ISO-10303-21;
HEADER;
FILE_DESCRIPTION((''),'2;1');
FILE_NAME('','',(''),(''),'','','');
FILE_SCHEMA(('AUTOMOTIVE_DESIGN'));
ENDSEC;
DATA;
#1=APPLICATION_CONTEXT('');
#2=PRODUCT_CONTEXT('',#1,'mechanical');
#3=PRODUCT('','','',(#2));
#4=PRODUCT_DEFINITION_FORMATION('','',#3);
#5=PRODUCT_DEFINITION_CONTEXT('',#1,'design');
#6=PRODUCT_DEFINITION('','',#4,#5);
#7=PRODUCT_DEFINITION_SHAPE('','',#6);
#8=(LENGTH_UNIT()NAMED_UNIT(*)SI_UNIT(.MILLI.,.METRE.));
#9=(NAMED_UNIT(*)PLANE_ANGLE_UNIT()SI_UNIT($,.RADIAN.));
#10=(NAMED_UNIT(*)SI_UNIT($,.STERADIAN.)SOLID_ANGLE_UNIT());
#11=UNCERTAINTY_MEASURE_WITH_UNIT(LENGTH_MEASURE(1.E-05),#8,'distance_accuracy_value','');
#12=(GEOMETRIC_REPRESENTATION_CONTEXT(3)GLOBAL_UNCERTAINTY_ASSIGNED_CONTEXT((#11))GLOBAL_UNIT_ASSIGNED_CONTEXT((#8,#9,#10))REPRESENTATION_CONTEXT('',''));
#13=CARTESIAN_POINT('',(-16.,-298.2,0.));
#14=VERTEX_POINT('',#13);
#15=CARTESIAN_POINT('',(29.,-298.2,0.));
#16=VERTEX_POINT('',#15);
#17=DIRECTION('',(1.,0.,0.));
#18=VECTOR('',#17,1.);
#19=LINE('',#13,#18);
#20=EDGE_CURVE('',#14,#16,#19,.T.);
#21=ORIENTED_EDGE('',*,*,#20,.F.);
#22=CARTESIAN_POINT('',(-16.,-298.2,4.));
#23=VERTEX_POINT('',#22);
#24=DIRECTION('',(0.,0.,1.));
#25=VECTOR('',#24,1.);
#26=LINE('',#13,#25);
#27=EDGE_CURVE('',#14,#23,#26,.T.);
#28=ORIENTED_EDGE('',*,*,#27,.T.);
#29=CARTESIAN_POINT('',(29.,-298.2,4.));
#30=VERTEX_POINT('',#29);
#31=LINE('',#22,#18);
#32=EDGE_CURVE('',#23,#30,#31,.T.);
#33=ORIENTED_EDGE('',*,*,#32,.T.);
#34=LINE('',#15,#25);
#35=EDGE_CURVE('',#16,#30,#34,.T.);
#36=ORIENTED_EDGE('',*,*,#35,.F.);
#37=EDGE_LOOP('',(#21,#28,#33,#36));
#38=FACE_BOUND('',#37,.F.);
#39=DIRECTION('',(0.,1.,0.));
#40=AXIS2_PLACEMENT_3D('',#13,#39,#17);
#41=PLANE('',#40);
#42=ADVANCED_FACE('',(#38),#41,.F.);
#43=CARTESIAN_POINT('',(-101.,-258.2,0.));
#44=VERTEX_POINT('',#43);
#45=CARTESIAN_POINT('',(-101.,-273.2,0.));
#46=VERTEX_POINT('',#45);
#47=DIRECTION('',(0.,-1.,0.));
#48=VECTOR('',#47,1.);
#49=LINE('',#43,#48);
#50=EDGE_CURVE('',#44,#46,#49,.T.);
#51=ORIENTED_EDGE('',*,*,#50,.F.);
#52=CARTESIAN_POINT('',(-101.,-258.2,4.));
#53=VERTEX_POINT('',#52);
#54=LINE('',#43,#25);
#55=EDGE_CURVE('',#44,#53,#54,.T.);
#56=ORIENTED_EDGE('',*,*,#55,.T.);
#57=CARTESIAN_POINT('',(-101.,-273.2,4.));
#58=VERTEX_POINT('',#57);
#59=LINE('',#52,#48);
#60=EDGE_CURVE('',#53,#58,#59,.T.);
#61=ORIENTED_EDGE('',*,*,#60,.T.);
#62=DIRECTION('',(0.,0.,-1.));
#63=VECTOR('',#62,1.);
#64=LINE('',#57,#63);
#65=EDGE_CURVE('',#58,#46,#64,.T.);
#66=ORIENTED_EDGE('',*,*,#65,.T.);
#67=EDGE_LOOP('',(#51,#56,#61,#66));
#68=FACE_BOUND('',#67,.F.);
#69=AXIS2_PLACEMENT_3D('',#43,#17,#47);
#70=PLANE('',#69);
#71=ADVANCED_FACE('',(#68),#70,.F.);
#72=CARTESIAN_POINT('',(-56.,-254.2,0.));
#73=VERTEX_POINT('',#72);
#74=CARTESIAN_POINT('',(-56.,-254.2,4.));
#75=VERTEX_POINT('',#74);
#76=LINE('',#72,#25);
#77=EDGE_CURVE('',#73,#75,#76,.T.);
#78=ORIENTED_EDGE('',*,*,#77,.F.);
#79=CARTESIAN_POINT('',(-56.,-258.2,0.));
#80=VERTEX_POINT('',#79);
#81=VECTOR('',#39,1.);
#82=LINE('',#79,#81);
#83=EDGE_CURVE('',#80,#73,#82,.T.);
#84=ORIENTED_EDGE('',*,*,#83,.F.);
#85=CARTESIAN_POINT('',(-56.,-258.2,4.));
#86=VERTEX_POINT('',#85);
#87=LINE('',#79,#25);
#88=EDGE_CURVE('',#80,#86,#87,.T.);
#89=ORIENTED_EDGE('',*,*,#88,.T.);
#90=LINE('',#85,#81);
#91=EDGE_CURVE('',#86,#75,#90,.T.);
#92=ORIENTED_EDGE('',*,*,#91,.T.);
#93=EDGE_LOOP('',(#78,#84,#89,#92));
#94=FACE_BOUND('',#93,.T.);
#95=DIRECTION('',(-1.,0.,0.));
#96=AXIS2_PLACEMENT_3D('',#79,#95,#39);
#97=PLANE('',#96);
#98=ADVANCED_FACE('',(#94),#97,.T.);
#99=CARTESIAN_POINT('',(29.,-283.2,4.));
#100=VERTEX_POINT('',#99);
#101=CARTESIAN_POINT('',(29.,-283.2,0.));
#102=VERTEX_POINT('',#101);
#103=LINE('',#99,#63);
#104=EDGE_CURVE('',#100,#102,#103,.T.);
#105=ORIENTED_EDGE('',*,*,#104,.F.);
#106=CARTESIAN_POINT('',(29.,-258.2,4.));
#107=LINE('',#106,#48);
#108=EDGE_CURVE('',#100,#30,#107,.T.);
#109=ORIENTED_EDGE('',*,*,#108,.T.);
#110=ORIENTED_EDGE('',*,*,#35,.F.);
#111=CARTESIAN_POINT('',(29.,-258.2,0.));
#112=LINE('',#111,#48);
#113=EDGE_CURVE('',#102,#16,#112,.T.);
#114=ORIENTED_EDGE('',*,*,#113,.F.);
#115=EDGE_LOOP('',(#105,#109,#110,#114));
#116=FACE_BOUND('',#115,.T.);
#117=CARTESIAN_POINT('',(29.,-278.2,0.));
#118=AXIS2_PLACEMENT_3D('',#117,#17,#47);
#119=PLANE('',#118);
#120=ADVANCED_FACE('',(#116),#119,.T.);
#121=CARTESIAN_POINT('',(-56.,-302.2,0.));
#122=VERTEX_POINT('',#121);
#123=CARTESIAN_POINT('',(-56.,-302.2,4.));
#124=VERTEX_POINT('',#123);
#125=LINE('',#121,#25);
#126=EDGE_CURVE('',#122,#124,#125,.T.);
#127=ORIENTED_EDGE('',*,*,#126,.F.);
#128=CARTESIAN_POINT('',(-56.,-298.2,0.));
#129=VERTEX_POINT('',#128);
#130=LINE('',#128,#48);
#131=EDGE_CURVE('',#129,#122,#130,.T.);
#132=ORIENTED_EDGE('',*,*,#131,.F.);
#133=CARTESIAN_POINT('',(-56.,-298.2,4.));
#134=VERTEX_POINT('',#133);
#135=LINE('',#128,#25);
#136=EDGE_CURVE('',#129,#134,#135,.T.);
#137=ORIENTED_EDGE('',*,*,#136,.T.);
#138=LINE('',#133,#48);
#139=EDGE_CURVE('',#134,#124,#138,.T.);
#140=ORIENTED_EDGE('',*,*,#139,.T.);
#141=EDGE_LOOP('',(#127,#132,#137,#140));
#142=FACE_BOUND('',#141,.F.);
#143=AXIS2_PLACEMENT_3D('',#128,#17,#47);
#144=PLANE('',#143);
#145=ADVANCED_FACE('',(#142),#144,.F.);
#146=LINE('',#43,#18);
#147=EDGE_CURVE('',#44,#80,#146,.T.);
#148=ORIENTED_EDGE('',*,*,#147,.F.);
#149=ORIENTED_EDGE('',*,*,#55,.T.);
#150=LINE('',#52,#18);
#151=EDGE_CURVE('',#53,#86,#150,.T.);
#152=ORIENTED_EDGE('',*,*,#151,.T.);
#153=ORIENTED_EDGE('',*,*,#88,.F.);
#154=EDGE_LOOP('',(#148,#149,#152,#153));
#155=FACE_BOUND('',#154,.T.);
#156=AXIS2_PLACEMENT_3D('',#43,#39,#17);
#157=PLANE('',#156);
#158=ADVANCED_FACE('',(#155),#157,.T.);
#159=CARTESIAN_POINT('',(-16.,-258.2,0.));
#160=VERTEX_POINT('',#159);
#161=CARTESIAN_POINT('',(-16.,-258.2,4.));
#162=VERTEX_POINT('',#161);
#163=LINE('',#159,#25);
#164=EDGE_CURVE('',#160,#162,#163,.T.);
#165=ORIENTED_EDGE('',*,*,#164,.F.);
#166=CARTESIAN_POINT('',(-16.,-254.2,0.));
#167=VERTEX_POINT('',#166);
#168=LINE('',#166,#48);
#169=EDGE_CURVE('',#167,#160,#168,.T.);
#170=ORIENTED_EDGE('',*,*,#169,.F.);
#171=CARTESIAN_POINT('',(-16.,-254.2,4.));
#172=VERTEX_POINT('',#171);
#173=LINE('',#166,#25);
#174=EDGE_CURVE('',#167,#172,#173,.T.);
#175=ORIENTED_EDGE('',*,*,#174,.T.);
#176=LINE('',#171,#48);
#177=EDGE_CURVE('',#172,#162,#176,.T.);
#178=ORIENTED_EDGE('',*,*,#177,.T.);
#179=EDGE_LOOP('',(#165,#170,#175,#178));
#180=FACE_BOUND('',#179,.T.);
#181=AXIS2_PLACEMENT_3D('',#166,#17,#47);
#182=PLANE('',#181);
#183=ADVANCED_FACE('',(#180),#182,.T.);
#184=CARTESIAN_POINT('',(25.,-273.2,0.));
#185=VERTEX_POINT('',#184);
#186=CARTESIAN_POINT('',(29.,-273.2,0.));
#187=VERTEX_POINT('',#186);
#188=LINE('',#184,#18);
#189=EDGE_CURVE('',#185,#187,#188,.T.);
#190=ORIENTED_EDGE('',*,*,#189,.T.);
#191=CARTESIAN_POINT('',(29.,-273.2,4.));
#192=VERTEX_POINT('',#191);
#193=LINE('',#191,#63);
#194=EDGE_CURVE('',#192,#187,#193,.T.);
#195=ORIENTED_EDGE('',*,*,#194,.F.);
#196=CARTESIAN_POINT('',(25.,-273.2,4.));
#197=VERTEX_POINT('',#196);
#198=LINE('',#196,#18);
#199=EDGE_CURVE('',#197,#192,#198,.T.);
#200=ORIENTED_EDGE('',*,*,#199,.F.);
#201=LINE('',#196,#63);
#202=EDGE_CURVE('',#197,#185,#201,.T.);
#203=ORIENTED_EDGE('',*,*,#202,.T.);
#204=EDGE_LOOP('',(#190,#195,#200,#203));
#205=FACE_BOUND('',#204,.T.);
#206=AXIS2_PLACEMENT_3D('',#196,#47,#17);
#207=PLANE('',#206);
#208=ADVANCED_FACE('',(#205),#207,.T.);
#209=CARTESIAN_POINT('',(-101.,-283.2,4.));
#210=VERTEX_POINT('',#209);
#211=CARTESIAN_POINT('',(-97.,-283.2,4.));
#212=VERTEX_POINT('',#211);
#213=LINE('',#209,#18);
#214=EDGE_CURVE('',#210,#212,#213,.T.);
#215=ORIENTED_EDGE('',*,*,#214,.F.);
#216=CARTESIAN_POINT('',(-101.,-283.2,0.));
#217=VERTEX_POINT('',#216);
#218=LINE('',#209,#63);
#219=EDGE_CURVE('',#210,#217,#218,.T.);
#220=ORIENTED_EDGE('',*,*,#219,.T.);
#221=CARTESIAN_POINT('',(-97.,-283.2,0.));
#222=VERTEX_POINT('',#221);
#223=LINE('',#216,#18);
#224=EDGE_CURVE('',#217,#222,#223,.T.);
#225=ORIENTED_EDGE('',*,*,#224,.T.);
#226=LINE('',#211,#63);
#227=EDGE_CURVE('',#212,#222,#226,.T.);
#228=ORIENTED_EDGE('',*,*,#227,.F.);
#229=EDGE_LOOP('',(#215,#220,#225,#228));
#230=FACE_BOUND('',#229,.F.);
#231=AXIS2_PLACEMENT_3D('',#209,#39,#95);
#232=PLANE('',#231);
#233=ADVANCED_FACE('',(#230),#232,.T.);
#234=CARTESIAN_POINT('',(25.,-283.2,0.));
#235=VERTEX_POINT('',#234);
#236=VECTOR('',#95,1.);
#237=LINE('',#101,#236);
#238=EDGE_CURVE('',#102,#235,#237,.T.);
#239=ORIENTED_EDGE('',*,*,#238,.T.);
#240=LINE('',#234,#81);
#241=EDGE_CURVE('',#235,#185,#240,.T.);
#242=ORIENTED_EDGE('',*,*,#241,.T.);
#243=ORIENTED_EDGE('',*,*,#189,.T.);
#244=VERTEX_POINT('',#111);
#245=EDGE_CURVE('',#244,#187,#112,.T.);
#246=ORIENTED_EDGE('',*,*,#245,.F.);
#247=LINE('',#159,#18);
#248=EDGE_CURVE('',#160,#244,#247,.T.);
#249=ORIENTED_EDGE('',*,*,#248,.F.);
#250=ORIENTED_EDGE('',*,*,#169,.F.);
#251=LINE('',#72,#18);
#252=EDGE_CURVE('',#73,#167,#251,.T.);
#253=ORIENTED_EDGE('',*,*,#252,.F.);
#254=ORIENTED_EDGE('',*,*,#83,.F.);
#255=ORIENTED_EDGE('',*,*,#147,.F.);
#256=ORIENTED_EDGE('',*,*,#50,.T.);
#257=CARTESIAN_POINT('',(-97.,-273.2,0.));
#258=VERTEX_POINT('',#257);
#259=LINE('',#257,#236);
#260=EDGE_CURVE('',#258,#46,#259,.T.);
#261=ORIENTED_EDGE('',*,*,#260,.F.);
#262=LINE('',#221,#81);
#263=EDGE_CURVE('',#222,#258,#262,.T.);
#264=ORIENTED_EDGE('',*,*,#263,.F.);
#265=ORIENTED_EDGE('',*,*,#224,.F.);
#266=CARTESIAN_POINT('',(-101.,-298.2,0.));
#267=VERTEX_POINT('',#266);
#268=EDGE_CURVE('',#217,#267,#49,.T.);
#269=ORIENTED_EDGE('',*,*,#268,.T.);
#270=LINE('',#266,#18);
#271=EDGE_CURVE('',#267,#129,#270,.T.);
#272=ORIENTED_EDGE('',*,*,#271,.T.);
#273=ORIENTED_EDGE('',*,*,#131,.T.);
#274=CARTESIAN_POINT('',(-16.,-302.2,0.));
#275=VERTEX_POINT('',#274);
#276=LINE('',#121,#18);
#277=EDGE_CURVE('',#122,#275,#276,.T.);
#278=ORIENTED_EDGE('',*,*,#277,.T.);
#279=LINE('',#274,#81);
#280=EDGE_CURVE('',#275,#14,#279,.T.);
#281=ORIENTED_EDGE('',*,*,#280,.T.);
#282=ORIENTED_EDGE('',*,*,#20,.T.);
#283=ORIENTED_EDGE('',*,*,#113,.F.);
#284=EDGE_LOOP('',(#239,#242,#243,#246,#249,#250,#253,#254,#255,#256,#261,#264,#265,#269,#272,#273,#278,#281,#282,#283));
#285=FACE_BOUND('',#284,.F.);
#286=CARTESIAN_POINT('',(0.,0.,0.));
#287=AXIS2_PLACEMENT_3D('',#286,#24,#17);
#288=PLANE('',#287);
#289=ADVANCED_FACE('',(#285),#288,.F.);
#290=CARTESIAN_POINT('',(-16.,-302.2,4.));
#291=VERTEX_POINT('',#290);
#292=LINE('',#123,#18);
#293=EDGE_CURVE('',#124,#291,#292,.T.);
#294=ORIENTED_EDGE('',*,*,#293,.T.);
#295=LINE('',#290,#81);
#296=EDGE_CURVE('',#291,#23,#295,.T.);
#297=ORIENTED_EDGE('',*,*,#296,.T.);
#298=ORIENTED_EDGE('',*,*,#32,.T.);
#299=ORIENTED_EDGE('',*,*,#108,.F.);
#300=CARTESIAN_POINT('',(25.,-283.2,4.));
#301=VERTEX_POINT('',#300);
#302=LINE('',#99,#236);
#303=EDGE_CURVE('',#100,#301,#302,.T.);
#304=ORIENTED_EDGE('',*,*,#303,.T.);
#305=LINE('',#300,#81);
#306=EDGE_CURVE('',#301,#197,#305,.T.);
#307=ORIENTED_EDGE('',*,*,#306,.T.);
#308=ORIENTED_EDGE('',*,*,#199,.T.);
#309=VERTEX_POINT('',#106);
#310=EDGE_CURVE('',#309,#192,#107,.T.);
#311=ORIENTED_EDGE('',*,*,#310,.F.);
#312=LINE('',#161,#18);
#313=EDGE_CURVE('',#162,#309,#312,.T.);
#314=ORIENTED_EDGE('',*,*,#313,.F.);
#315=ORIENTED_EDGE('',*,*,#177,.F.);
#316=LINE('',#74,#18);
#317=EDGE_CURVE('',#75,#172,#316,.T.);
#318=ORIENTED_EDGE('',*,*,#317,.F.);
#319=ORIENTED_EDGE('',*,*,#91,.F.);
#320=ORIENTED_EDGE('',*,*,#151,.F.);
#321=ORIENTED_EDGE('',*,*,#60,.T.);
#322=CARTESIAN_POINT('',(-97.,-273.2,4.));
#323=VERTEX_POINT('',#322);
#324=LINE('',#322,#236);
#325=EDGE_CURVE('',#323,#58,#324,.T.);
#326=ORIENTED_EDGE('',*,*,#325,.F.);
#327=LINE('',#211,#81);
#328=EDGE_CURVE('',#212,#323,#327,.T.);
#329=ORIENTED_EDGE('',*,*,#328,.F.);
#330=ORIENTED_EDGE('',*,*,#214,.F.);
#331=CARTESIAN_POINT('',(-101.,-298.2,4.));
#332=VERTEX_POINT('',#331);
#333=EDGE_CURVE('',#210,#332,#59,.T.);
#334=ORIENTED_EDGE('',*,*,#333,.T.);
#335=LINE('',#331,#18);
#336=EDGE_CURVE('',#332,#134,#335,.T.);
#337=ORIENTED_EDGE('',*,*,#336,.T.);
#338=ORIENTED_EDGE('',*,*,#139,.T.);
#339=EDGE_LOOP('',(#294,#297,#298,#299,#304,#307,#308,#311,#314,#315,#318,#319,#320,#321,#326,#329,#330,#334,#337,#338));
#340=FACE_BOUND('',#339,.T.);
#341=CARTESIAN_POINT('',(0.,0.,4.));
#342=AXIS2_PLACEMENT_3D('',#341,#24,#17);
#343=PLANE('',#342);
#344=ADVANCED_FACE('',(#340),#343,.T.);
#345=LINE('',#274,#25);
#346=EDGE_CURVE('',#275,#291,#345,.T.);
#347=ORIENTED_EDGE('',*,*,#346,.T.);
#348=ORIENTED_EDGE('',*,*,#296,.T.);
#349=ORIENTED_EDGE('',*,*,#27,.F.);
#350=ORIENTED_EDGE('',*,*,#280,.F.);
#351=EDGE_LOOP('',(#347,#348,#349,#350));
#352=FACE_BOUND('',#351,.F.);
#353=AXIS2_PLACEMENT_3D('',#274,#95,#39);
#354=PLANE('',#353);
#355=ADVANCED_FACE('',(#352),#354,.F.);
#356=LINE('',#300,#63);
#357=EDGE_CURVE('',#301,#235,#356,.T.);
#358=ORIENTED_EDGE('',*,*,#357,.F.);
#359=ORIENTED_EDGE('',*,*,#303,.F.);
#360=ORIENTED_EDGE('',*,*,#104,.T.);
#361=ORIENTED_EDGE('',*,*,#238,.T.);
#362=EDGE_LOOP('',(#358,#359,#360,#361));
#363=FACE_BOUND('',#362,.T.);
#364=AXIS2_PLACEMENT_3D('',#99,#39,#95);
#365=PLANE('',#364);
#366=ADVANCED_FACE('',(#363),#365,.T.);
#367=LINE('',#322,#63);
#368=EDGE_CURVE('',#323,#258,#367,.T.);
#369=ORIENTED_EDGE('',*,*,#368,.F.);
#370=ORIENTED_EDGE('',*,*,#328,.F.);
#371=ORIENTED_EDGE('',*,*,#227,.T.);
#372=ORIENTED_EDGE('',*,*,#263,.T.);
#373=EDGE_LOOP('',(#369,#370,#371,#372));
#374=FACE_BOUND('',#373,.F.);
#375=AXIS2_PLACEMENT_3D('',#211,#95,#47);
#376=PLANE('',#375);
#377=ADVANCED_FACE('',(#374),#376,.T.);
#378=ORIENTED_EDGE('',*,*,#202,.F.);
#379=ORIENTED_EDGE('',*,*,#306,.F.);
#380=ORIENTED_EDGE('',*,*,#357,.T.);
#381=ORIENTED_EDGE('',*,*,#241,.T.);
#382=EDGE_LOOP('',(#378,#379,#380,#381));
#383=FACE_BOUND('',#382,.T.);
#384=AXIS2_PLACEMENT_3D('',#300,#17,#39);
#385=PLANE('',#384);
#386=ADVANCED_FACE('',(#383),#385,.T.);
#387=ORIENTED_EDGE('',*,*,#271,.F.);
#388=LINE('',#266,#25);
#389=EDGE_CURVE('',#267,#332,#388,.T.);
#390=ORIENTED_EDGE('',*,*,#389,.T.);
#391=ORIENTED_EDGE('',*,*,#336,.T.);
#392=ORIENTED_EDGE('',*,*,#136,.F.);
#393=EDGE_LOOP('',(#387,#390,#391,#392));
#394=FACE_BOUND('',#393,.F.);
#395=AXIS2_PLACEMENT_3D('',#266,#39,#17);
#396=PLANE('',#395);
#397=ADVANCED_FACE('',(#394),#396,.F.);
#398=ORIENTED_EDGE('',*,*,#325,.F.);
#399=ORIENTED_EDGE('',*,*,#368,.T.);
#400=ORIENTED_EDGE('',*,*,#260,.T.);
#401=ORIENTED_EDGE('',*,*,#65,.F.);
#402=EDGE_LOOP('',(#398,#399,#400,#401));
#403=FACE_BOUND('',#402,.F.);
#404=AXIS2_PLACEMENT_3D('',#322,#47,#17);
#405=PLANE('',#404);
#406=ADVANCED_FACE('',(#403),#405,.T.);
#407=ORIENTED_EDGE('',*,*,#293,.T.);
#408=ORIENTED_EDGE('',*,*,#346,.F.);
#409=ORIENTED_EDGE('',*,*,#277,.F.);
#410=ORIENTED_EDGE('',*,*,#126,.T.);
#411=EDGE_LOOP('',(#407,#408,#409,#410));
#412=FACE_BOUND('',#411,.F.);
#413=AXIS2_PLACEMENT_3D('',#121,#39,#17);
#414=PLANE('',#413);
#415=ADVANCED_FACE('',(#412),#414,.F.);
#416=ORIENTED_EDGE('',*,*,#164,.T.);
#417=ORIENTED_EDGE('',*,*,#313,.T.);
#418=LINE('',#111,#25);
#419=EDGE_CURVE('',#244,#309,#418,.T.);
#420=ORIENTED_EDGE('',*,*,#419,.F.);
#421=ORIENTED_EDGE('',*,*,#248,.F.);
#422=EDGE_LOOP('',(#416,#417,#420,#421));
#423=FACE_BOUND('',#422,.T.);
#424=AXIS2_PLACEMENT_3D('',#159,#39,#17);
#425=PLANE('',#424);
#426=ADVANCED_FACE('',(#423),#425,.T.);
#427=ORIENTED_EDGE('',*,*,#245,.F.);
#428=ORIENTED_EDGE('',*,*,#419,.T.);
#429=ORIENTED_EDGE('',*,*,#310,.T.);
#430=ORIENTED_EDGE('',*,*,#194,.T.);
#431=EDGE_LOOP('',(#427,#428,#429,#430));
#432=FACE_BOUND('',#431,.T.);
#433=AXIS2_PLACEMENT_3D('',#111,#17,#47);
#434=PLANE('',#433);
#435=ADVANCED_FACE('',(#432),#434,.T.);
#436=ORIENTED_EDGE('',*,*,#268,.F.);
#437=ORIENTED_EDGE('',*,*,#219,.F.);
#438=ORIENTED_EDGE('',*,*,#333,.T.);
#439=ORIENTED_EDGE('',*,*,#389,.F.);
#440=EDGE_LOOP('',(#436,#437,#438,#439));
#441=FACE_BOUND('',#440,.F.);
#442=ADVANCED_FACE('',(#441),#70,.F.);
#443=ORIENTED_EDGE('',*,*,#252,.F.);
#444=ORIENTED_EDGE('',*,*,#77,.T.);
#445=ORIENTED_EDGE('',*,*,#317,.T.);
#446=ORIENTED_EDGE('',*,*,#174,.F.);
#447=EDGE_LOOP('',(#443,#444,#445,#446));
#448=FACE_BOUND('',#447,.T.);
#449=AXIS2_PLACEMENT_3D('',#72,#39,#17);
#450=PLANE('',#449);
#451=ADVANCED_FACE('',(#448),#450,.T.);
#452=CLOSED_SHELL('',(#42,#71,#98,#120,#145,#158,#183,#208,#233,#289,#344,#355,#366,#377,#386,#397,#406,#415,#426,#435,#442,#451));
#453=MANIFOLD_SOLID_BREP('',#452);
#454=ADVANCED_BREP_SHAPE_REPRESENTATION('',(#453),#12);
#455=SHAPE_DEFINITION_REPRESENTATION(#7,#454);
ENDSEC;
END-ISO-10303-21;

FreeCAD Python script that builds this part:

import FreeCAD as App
import Part
import Sketcher
Q = App.Units.Quantity

doc = App.newDocument("Part")
params = doc.addObject("Spreadsheet::Sheet", "Params")
for row, (alias, value) in enumerate([
    ("sketch1_width", "40 mm"),
    ("sketch1_height", "4 mm"),
    ("pad1_length", "4 mm"),
    ("sketch2_width", "4 mm"),
    ("sketch2_height", "10 mm"),
    ("pocket1_length", "4 mm"),
], start=1):
    params.set(f"A{row}", alias)
    params.set(f"B{row}", "=" + value)
    params.setAlias(f"B{row}", alias)

body = doc.addObject("PartDesign::Body", "Body")

sketch1 = body.newObject("Sketcher::SketchObject", "Sketch")
sketch1.AttachmentSupport = (doc.getObject("XY_Plane"), [""])
sketch1.MapMode = "FlatFace"
sketch1.addGeometry([
    Part.LineSegment(App.Vector(-56, -258.2, 0), App.Vector(-101, -258.2, 0)),
    Part.LineSegment(App.Vector(-101, -258.2, 0), App.Vector(-101, -298.2, 0)),
    Part.LineSegment(App.Vector(-101, -298.2, 0), App.Vector(-56, -298.2, 0)),
    Part.LineSegment(App.Vector(-56, -298.2, 0), App.Vector(-56, -302.2, 0)),
    Part.LineSegment(App.Vector(-56, -302.2, 0), App.Vector(-16, -302.2, 0)),
    Part.LineSegment(App.Vector(-16, -302.2, 0), App.Vector(-16, -298.2, 0)),
    Part.LineSegment(App.Vector(-16, -298.2, 0), App.Vector(29, -298.2, 0)),
    Part.LineSegment(App.Vector(29, -298.2, 0), App.Vector(29, -258.2, 0)),
    Part.LineSegment(App.Vector(29, -258.2, 0), App.Vector(-16, -258.2, 0)),
    Part.LineSegment(App.Vector(-16, -258.2, 0), App.Vector(-16, -254.2, 0)),
    Part.LineSegment(App.Vector(-16, -254.2, 0), App.Vector(-56, -254.2, 0)),
    Part.LineSegment(App.Vector(-56, -254.2, 0), App.Vector(-56, -258.2, 0)),
], False)
sketch1.addConstraint([
    Sketcher.Constraint("Coincident", 0, 2, 1, 1),
    Sketcher.Constraint("Coincident", 1, 2, 2, 1),
    Sketcher.Constraint("Coincident", 2, 2, 3, 1),
    Sketcher.Constraint("Coincident", 3, 2, 4, 1),
    Sketcher.Constraint("Coincident", 4, 2, 5, 1),
    Sketcher.Constraint("Coincident", 5, 2, 6, 1),
    Sketcher.Constraint("Coincident", 6, 2, 7, 1),
    Sketcher.Constraint("Coincident", 7, 2, 8, 1),
    Sketcher.Constraint("Coincident", 8, 2, 9, 1),
    Sketcher.Constraint("Coincident", 9, 2, 10, 1),
    Sketcher.Constraint("Coincident", 10, 2, 11, 1),
    Sketcher.Constraint("Coincident", 11, 2, 0, 1),
    Sketcher.Constraint("Horizontal", 0),
    Sketcher.Constraint("Vertical", 1),
    Sketcher.Constraint("Horizontal", 2),
    Sketcher.Constraint("Vertical", 3),
    Sketcher.Constraint("Horizontal", 4),
    Sketcher.Constraint("Vertical", 5),
    Sketcher.Constraint("Horizontal", 6),
    Sketcher.Constraint("Vertical", 7),
    Sketcher.Constraint("Horizontal", 8),
    Sketcher.Constraint("Vertical", 9),
    Sketcher.Constraint("Horizontal", 10),
    Sketcher.Constraint("Vertical", 11),
    Sketcher.Constraint("Horizontal", 2, 2, 5, 2),
    Sketcher.Constraint("Horizontal", 0, 2, 7, 2),
    Sketcher.Constraint("Vertical", 5, 2, 8, 2),
    Sketcher.Constraint("Vertical", 3, 2, 10, 2),
    Sketcher.Constraint("Equal", 2, 6),
    Sketcher.Constraint("Equal", 10, 1),
    Sketcher.Constraint("Equal", 5, 9),
    Sketcher.Constraint("DistanceX", 4, 1, 4, 2, Q("40 mm")),
    Sketcher.Constraint("DistanceX", 1, 2, 6, 2, Q("130 mm")),
    Sketcher.Constraint("DistanceY", 3, 2, 3, 1, Q("4 mm")),
    Sketcher.Constraint("DistanceX", 0, 2, -1, 1, Q("101 mm")),
    Sketcher.Constraint("DistanceY", 0, 2, -1, 1, Q("258.2 mm")),
])
sketch1.setExpression("Constraints[31]", "Params.sketch1_width")
sketch1.setExpression("Constraints[33]", "Params.sketch1_height")
pad1 = body.newObject("PartDesign::Pad", "Pad")
pad1.Profile = sketch1
pad1.setExpression("Length", "Params.pad1_length")

sketch2 = body.newObject("Sketcher::SketchObject", "Sketch001")
sketch2.AttachmentSupport = (doc.getObject("XY_Plane"), [""])
sketch2.MapMode = "FlatFace"
sketch2.AttachmentOffset = App.Placement(App.Vector(0, 0, 4), App.Rotation())
sketch2.addGeometry([
    Part.LineSegment(App.Vector(29, -283.2, 0), App.Vector(29, -273.2, 0)),
    Part.LineSegment(App.Vector(29, -273.2, 0), App.Vector(25, -273.2, 0)),
    Part.LineSegment(App.Vector(25, -273.2, 0), App.Vector(25, -283.2, 0)),
    Part.LineSegment(App.Vector(25, -283.2, 0), App.Vector(29, -283.2, 0)),
], False)
sketch2.addConstraint([
    Sketcher.Constraint("Coincident", 0, 2, 1, 1),
    Sketcher.Constraint("Coincident", 1, 2, 2, 1),
    Sketcher.Constraint("Coincident", 2, 2, 3, 1),
    Sketcher.Constraint("Coincident", 3, 2, 0, 1),
    Sketcher.Constraint("Vertical", 0),
    Sketcher.Constraint("Horizontal", 1),
    Sketcher.Constraint("Vertical", 2),
    Sketcher.Constraint("Horizontal", 3),
    Sketcher.Constraint("DistanceX", 1, 2, 1, 1, Q("4 mm")),
    Sketcher.Constraint("DistanceY", 0, 1, 0, 2, Q("10 mm")),
    Sketcher.Constraint("DistanceX", -1, 1, 0, 2, Q("29 mm")),
    Sketcher.Constraint("DistanceY", 0, 2, -1, 1, Q("273.2 mm")),
])
sketch2.setExpression("Constraints[8]", "Params.sketch2_width")
sketch2.setExpression("Constraints[9]", "Params.sketch2_height")
pocket1 = body.newObject("PartDesign::Pocket", "Pocket")
pocket1.Profile = sketch2
pocket1.setExpression("Length", "Params.pocket1_length")
doc.recompute()

datumplane = body.newObject("PartDesign::Plane", "DatumPlane")
datumplane.AttachmentSupport = (doc.getObject("YZ_Plane"), [""])
datumplane.MapMode = "FlatFace"
datumplane.AttachmentOffset = App.Placement(App.Vector(0, 0, -36), App.Rotation())
mirrored = body.newObject("PartDesign::Mirrored", "Mirrored")
mirrored.Originals = [pocket1]
mirrored.MirrorPlane = (datumplane, [""])
body.Tip = mirrored

doc.recompute()
